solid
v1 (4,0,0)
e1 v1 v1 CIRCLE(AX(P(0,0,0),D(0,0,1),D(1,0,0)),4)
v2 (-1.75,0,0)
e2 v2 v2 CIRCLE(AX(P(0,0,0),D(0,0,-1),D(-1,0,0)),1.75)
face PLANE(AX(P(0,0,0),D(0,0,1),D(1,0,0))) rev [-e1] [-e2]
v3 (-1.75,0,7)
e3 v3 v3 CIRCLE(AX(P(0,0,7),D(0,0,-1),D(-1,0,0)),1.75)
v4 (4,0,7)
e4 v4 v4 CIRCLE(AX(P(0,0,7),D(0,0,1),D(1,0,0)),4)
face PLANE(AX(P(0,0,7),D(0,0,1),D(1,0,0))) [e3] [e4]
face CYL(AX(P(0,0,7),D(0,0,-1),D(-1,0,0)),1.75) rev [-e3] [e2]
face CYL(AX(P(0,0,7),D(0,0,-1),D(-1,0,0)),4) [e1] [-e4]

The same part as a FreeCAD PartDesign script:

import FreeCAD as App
import Part
import Sketcher
Q = App.Units.Quantity

doc = App.newDocument("Part")
body = doc.addObject("PartDesign::Body", "Body")

sketch1 = body.newObject("Sketcher::SketchObject", "Sketch")
sketch1.AttachmentSupport = (doc.getObject("XY_Plane"), [""])
sketch1.MapMode = "FlatFace"
sketch1.addGeometry(Part.Circle(App.Vector(0, 0, 0), App.Vector(0, 0, 1), 4), False)
sketch1.addConstraint(Sketcher.Constraint("Coincident", 0, 3, -1, 1))
sketch1.addConstraint(Sketcher.Constraint("Diameter", 0, Q("8 mm")))
pad1 = body.newObject("PartDesign::Pad", "Pad")
pad1.Profile = sketch1
pad1.Length = 7

sketch2 = body.newObject("Sketcher::SketchObject", "Sketch001")
sketch2.AttachmentSupport = (doc.getObject("XY_Plane"), [""])
sketch2.MapMode = "FlatFace"
sketch2.addGeometry(Part.Circle(App.Vector(0, 0, 0), App.Vector(0, 0, 1), 1.8), False)
sketch2.addConstraint(Sketcher.Constraint("Coincident", 0, 3, -1, 1))
sketch2.addConstraint(Sketcher.Constraint("Diameter", 0, Q("3.5 mm")))
pocket1 = body.newObject("PartDesign::Pocket", "Pocket")
pocket1.Profile = sketch2
pocket1.Length = 7
pocket1.Reversed = True

doc.recompute()
